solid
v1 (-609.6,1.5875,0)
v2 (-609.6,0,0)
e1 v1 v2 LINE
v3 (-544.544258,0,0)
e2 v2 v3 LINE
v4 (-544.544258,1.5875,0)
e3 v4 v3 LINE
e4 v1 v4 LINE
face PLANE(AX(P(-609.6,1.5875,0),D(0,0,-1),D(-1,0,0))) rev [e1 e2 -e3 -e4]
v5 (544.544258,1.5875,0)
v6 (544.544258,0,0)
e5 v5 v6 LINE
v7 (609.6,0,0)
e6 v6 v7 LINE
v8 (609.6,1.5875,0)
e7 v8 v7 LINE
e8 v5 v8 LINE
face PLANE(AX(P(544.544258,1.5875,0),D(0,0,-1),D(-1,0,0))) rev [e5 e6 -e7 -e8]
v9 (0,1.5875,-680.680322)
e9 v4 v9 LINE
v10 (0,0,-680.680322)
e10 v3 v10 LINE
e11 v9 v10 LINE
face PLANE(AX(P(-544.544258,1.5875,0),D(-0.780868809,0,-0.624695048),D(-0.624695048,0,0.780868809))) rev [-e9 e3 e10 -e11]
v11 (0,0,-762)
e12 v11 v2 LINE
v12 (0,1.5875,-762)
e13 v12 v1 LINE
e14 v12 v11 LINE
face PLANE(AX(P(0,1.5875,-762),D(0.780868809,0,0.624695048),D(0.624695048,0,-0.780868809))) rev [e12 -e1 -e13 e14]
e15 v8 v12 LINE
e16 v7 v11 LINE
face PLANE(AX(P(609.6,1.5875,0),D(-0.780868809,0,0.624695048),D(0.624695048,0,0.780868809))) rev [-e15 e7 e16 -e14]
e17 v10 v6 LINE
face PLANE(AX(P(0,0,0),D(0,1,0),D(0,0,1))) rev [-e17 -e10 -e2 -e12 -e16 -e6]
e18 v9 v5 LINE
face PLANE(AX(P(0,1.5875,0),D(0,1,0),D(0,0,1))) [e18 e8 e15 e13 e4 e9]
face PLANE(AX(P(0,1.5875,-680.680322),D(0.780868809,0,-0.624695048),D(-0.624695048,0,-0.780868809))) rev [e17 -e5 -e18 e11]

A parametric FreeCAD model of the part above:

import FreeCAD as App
import Part
import Sketcher
Q = App.Units.Quantity

doc = App.newDocument("Part")
body = doc.addObject("PartDesign::Body", "Body")

# Sketch on XZ plane
sketch1 = body.newObject("Sketcher::SketchObject", "Sketch")
sketch1.AttachmentSupport = (doc.getObject("XZ_Plane"), [""])
sketch1.MapMode = "FlatFace"
sketch1.addGeometry([
    Part.LineSegment(App.Vector(610, 0, 0), App.Vector(0, -762, 0)),  # 0
    Part.LineSegment(App.Vector(0, -762, 0), App.Vector(-610, 0, 0)),  # 1
    Part.LineSegment(App.Vector(-610, 0, 0), App.Vector(-545, 0, 0)),  # 2
    Part.LineSegment(App.Vector(-545, 0, 0), App.Vector(0, -681, 0)),  # 3
    Part.LineSegment(App.Vector(0, -681, 0), App.Vector(545, 0, 0)),  # 4
    Part.LineSegment(App.Vector(545, 0, 0), App.Vector(610, 0, 0)),  # 5
], False)
sketch1.addConstraint([
    Sketcher.Constraint("Coincident", 0, 2, 1, 1),
    Sketcher.Constraint("Coincident", 1, 2, 2, 1),
    Sketcher.Constraint("Coincident", 2, 2, 3, 1),
    Sketcher.Constraint("Coincident", 3, 2, 4, 1),
    Sketcher.Constraint("Coincident", 4, 2, 5, 1),
    Sketcher.Constraint("Coincident", 5, 2, 0, 1),
    Sketcher.Constraint("Horizontal", 2),
    Sketcher.Constraint("Horizontal", 5),
    Sketcher.Constraint("Symmetric", 2, 2, 4, 2, -1, 1),
    Sketcher.Constraint("Symmetric", 1, 2, 5, 2, -2),
    Sketcher.Constraint("PointOnObject", 0, 2, -2),
    Sketcher.Constraint("PointOnObject", 3, 2, -2),
    Sketcher.Constraint("Parallel", 1, 3),
    Sketcher.Constraint("DistanceY", 0, 2, -1, 1, Q("30 in")),
    Sketcher.Constraint("DistanceX", 1, 2, -1, 1, Q("24 in")),
    Sketcher.Constraint("DistanceX", 2, 1, 2, 2, 65.055742),
])
pad1 = body.newObject("PartDesign::Pad", "Pad")
pad1.Profile = sketch1
pad1.Length = Q("0.0625 in")
pad1.Reversed = True

doc.recompute()
